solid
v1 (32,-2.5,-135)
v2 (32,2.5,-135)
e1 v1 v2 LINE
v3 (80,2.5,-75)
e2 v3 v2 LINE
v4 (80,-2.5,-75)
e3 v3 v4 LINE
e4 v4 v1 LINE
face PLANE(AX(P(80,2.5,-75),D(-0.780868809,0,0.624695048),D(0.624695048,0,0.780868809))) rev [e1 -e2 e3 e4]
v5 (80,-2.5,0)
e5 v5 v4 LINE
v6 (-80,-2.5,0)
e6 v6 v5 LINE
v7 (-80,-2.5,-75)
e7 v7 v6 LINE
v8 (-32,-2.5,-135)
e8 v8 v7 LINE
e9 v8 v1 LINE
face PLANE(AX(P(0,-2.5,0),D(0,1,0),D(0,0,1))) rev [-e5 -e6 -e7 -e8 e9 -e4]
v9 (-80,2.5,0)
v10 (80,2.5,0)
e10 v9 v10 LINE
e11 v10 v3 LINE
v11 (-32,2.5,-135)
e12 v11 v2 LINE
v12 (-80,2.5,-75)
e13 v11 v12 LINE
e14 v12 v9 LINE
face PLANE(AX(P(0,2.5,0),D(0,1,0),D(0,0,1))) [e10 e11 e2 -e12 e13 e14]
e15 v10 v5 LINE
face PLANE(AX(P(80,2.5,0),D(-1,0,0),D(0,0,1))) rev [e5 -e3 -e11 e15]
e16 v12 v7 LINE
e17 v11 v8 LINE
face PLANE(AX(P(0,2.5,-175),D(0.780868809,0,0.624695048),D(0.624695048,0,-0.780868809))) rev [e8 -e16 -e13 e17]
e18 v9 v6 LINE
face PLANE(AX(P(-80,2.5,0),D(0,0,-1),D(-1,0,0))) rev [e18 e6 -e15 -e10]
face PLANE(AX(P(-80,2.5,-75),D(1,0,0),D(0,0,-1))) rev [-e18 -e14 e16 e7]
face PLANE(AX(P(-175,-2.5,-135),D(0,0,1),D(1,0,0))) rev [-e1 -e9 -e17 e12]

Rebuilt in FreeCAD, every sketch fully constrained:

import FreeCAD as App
import Part
import Sketcher

V = App.Vector


def add_polygon(sketch, points):
    """Adds a closed chain of lines whose ends are joined by coincident constraints."""
    first, n = sketch.GeometryCount, len(points)
    for a, b in zip(points, points[1:] + points[:1]):
        sketch.addGeometry(Part.LineSegment(App.Vector(*a, 0), App.Vector(*b, 0)), False)
    for i in range(n):
        sketch.addConstraint(Sketcher.Constraint("Coincident", first + i, 2, first + (i + 1) % n, 1))

doc = App.newDocument("Part")
body = doc.addObject("PartDesign::Body", "Body")

sketch1 = doc.addObject("Sketcher::SketchObject", "Sketch")
body.addObject(sketch1)
sketch1.AttachmentSupport = (doc.XZ_Plane, [""])
sketch1.MapMode = "FlatFace"
add_polygon(sketch1, [(-80, 0), (80, 0), (80, -75), (0, -175), (-80, -75)])
sketch1.addConstraint(Sketcher.Constraint("Horizontal", 0))
sketch1.addConstraint(Sketcher.Constraint("Vertical", 1))
sketch1.addConstraint(Sketcher.Constraint("Vertical", 4))
sketch1.addConstraint(Sketcher.Constraint("Symmetric", 0, 2, 4, 2, -1, 1))
sketch1.addConstraint(Sketcher.Constraint("PointOnObject", 2, 2, -2))
sketch1.addConstraint(Sketcher.Constraint("Horizontal", 1, 2, 3, 2))
sketch1.addConstraint(Sketcher.Constraint("DistanceX", 0, 1, 0, 2, 160.0))
sketch1.addConstraint(Sketcher.Constraint("DistanceY", 1, 2, 1, 1, 75.0))
sketch1.addConstraint(Sketcher.Constraint("DistanceY", 2, 2, -1, 1, 175.0))
pad1 = doc.addObject("PartDesign::Pad", "Pad")
body.addObject(pad1)
pad1.Profile = sketch1
pad1.Length = 5
pad1.Midplane = True

sketch2 = doc.addObject("Sketcher::SketchObject", "Sketch001")
body.addObject(sketch2)
sketch2.AttachmentSupport = (doc.XZ_Plane, [""])
sketch2.MapMode = "FlatFace"
add_polygon(sketch2, [(-175, -175), (-175, -135), (175, -135), (175, -175)])
sketch2.addConstraint(Sketcher.Constraint("Vertical", 0))
sketch2.addConstraint(Sketcher.Constraint("Horizontal", 1))
sketch2.addConstraint(Sketcher.Constraint("Vertical", 2))
sketch2.addConstraint(Sketcher.Constraint("Horizontal", 3))
sketch2.addConstraint(Sketcher.Constraint("DistanceX", 1, 1, 1, 2, 350.0))
sketch2.addConstraint(Sketcher.Constraint("DistanceY", 0, 1, 0, 2, 40.0))
sketch2.addConstraint(Sketcher.Constraint("DistanceX", 0, 2, -1, 1, 175.0))
sketch2.addConstraint(Sketcher.Constraint("DistanceY", 0, 2, -1, 1, 135.0))
pocket1 = doc.addObject("PartDesign::Pocket", "Pocket")
body.addObject(pocket1)
pocket1.Profile = sketch2
pocket1.Type = "ThroughAll"
pocket1.Midplane = True

doc.recompute()
